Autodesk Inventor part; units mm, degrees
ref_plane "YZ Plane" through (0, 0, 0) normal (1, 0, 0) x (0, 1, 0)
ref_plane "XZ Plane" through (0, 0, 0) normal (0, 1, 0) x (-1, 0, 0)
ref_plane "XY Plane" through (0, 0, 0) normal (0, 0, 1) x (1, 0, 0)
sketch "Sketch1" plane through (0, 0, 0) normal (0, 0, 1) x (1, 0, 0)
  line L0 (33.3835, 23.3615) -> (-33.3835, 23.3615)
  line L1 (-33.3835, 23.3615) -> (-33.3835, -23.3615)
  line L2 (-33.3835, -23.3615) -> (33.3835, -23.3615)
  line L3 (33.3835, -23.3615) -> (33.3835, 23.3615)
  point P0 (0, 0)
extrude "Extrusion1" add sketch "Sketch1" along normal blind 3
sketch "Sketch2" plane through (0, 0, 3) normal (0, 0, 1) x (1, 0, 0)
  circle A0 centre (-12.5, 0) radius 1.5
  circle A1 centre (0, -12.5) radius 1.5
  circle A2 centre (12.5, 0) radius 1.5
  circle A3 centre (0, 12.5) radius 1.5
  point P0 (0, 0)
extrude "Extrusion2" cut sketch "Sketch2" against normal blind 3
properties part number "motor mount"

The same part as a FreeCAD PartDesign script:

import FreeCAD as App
import Part
import Sketcher

V = App.Vector
Q = App.Units.Quantity

doc = App.newDocument("Part")
body = doc.addObject("PartDesign::Body", "Body")

sketch1 = body.newObject("Sketcher::SketchObject", "Sketch")
sketch1.AttachmentSupport = (doc.getObject("XY_Plane"), [""])
sketch1.MapMode = "FlatFace"
sketch1.addGeometry(Part.LineSegment(V(33, -23, 0), V(33, 23, 0)), False)
sketch1.addGeometry(Part.LineSegment(V(33, 23, 0), V(-33, 23, 0)), False)
sketch1.addGeometry(Part.LineSegment(V(-33, 23, 0), V(-33, -23, 0)), False)
sketch1.addGeometry(Part.LineSegment(V(-33, -23, 0), V(33, -23, 0)), False)
sketch1.addConstraint(Sketcher.Constraint("Coincident", 0, 2, 1, 1))
sketch1.addConstraint(Sketcher.Constraint("Coincident", 1, 2, 2, 1))
sketch1.addConstraint(Sketcher.Constraint("Coincident", 2, 2, 3, 1))
sketch1.addConstraint(Sketcher.Constraint("Coincident", 3, 2, 0, 1))
sketch1.addConstraint(Sketcher.Constraint("Vertical", 0))
sketch1.addConstraint(Sketcher.Constraint("Horizontal", 1))
sketch1.addConstraint(Sketcher.Constraint("Vertical", 2))
sketch1.addConstraint(Sketcher.Constraint("Horizontal", 3))
sketch1.addConstraint(Sketcher.Constraint("Symmetric", 0, 2, 2, 2, -1, 1))
sketch1.addConstraint(Sketcher.Constraint("DistanceX", 1, 2, 1, 1, Q("66.767 mm")))
sketch1.addConstraint(Sketcher.Constraint("DistanceY", 0, 1, 0, 2, Q("46.723 mm")))
pad1 = body.newObject("PartDesign::Pad", "Pad")
pad1.Profile = sketch1
pad1.Length = 3

sketch2 = body.newObject("Sketcher::SketchObject", "Sketch001")
sketch2.AttachmentSupport = (doc.getObject("XY_Plane"), [""])
sketch2.MapMode = "FlatFace"
sketch2.AttachmentOffset = App.Placement(V(0, 0, 3), App.Rotation())
sketch2.addGeometry(Part.Circle(V(-12.5, 0, 0), V(0, 0, 1), 1.5), False)
sketch2.addGeometry(Part.Circle(V(0, -12.5, 0), V(0, 0, 1), 1.5), False)
sketch2.addGeometry(Part.Circle(V(12.5, 0, 0), V(0, 0, 1), 1.5), False)
sketch2.addGeometry(Part.Circle(V(0, 12.5, 0), V(0, 0, 1), 1.5), False)
sketch2.addConstraint(Sketcher.Constraint("Equal", 0, 1))
sketch2.addConstraint(Sketcher.Constraint("Equal", 1, 2))
sketch2.addConstraint(Sketcher.Constraint("Equal", 2, 3))
sketch2.addConstraint(Sketcher.Constraint("Symmetric", 0, 3, 2, 3, -1, 1))
sketch2.addConstraint(Sketcher.Constraint("Symmetric", 1, 3, 3, 3, -1, 1))
sketch2.addConstraint(Sketcher.Constraint("PointOnObject", 0, 3, -1))
sketch2.addConstraint(Sketcher.Constraint("PointOnObject", 1, 3, -2))
sketch2.addConstraint(Sketcher.Constraint("Diameter", 0, Q("3 mm")))
sketch2.addConstraint(Sketcher.Constraint("DistanceX", 0, 3, 2, 3, Q("25 mm")))
sketch2.addConstraint(Sketcher.Constraint("DistanceY", 1, 3, 3, 3, Q("25 mm")))
pocket1 = body.newObject("PartDesign::Pocket", "Pocket")
pocket1.Profile = sketch2
pocket1.Length = 3

doc.recompute()
